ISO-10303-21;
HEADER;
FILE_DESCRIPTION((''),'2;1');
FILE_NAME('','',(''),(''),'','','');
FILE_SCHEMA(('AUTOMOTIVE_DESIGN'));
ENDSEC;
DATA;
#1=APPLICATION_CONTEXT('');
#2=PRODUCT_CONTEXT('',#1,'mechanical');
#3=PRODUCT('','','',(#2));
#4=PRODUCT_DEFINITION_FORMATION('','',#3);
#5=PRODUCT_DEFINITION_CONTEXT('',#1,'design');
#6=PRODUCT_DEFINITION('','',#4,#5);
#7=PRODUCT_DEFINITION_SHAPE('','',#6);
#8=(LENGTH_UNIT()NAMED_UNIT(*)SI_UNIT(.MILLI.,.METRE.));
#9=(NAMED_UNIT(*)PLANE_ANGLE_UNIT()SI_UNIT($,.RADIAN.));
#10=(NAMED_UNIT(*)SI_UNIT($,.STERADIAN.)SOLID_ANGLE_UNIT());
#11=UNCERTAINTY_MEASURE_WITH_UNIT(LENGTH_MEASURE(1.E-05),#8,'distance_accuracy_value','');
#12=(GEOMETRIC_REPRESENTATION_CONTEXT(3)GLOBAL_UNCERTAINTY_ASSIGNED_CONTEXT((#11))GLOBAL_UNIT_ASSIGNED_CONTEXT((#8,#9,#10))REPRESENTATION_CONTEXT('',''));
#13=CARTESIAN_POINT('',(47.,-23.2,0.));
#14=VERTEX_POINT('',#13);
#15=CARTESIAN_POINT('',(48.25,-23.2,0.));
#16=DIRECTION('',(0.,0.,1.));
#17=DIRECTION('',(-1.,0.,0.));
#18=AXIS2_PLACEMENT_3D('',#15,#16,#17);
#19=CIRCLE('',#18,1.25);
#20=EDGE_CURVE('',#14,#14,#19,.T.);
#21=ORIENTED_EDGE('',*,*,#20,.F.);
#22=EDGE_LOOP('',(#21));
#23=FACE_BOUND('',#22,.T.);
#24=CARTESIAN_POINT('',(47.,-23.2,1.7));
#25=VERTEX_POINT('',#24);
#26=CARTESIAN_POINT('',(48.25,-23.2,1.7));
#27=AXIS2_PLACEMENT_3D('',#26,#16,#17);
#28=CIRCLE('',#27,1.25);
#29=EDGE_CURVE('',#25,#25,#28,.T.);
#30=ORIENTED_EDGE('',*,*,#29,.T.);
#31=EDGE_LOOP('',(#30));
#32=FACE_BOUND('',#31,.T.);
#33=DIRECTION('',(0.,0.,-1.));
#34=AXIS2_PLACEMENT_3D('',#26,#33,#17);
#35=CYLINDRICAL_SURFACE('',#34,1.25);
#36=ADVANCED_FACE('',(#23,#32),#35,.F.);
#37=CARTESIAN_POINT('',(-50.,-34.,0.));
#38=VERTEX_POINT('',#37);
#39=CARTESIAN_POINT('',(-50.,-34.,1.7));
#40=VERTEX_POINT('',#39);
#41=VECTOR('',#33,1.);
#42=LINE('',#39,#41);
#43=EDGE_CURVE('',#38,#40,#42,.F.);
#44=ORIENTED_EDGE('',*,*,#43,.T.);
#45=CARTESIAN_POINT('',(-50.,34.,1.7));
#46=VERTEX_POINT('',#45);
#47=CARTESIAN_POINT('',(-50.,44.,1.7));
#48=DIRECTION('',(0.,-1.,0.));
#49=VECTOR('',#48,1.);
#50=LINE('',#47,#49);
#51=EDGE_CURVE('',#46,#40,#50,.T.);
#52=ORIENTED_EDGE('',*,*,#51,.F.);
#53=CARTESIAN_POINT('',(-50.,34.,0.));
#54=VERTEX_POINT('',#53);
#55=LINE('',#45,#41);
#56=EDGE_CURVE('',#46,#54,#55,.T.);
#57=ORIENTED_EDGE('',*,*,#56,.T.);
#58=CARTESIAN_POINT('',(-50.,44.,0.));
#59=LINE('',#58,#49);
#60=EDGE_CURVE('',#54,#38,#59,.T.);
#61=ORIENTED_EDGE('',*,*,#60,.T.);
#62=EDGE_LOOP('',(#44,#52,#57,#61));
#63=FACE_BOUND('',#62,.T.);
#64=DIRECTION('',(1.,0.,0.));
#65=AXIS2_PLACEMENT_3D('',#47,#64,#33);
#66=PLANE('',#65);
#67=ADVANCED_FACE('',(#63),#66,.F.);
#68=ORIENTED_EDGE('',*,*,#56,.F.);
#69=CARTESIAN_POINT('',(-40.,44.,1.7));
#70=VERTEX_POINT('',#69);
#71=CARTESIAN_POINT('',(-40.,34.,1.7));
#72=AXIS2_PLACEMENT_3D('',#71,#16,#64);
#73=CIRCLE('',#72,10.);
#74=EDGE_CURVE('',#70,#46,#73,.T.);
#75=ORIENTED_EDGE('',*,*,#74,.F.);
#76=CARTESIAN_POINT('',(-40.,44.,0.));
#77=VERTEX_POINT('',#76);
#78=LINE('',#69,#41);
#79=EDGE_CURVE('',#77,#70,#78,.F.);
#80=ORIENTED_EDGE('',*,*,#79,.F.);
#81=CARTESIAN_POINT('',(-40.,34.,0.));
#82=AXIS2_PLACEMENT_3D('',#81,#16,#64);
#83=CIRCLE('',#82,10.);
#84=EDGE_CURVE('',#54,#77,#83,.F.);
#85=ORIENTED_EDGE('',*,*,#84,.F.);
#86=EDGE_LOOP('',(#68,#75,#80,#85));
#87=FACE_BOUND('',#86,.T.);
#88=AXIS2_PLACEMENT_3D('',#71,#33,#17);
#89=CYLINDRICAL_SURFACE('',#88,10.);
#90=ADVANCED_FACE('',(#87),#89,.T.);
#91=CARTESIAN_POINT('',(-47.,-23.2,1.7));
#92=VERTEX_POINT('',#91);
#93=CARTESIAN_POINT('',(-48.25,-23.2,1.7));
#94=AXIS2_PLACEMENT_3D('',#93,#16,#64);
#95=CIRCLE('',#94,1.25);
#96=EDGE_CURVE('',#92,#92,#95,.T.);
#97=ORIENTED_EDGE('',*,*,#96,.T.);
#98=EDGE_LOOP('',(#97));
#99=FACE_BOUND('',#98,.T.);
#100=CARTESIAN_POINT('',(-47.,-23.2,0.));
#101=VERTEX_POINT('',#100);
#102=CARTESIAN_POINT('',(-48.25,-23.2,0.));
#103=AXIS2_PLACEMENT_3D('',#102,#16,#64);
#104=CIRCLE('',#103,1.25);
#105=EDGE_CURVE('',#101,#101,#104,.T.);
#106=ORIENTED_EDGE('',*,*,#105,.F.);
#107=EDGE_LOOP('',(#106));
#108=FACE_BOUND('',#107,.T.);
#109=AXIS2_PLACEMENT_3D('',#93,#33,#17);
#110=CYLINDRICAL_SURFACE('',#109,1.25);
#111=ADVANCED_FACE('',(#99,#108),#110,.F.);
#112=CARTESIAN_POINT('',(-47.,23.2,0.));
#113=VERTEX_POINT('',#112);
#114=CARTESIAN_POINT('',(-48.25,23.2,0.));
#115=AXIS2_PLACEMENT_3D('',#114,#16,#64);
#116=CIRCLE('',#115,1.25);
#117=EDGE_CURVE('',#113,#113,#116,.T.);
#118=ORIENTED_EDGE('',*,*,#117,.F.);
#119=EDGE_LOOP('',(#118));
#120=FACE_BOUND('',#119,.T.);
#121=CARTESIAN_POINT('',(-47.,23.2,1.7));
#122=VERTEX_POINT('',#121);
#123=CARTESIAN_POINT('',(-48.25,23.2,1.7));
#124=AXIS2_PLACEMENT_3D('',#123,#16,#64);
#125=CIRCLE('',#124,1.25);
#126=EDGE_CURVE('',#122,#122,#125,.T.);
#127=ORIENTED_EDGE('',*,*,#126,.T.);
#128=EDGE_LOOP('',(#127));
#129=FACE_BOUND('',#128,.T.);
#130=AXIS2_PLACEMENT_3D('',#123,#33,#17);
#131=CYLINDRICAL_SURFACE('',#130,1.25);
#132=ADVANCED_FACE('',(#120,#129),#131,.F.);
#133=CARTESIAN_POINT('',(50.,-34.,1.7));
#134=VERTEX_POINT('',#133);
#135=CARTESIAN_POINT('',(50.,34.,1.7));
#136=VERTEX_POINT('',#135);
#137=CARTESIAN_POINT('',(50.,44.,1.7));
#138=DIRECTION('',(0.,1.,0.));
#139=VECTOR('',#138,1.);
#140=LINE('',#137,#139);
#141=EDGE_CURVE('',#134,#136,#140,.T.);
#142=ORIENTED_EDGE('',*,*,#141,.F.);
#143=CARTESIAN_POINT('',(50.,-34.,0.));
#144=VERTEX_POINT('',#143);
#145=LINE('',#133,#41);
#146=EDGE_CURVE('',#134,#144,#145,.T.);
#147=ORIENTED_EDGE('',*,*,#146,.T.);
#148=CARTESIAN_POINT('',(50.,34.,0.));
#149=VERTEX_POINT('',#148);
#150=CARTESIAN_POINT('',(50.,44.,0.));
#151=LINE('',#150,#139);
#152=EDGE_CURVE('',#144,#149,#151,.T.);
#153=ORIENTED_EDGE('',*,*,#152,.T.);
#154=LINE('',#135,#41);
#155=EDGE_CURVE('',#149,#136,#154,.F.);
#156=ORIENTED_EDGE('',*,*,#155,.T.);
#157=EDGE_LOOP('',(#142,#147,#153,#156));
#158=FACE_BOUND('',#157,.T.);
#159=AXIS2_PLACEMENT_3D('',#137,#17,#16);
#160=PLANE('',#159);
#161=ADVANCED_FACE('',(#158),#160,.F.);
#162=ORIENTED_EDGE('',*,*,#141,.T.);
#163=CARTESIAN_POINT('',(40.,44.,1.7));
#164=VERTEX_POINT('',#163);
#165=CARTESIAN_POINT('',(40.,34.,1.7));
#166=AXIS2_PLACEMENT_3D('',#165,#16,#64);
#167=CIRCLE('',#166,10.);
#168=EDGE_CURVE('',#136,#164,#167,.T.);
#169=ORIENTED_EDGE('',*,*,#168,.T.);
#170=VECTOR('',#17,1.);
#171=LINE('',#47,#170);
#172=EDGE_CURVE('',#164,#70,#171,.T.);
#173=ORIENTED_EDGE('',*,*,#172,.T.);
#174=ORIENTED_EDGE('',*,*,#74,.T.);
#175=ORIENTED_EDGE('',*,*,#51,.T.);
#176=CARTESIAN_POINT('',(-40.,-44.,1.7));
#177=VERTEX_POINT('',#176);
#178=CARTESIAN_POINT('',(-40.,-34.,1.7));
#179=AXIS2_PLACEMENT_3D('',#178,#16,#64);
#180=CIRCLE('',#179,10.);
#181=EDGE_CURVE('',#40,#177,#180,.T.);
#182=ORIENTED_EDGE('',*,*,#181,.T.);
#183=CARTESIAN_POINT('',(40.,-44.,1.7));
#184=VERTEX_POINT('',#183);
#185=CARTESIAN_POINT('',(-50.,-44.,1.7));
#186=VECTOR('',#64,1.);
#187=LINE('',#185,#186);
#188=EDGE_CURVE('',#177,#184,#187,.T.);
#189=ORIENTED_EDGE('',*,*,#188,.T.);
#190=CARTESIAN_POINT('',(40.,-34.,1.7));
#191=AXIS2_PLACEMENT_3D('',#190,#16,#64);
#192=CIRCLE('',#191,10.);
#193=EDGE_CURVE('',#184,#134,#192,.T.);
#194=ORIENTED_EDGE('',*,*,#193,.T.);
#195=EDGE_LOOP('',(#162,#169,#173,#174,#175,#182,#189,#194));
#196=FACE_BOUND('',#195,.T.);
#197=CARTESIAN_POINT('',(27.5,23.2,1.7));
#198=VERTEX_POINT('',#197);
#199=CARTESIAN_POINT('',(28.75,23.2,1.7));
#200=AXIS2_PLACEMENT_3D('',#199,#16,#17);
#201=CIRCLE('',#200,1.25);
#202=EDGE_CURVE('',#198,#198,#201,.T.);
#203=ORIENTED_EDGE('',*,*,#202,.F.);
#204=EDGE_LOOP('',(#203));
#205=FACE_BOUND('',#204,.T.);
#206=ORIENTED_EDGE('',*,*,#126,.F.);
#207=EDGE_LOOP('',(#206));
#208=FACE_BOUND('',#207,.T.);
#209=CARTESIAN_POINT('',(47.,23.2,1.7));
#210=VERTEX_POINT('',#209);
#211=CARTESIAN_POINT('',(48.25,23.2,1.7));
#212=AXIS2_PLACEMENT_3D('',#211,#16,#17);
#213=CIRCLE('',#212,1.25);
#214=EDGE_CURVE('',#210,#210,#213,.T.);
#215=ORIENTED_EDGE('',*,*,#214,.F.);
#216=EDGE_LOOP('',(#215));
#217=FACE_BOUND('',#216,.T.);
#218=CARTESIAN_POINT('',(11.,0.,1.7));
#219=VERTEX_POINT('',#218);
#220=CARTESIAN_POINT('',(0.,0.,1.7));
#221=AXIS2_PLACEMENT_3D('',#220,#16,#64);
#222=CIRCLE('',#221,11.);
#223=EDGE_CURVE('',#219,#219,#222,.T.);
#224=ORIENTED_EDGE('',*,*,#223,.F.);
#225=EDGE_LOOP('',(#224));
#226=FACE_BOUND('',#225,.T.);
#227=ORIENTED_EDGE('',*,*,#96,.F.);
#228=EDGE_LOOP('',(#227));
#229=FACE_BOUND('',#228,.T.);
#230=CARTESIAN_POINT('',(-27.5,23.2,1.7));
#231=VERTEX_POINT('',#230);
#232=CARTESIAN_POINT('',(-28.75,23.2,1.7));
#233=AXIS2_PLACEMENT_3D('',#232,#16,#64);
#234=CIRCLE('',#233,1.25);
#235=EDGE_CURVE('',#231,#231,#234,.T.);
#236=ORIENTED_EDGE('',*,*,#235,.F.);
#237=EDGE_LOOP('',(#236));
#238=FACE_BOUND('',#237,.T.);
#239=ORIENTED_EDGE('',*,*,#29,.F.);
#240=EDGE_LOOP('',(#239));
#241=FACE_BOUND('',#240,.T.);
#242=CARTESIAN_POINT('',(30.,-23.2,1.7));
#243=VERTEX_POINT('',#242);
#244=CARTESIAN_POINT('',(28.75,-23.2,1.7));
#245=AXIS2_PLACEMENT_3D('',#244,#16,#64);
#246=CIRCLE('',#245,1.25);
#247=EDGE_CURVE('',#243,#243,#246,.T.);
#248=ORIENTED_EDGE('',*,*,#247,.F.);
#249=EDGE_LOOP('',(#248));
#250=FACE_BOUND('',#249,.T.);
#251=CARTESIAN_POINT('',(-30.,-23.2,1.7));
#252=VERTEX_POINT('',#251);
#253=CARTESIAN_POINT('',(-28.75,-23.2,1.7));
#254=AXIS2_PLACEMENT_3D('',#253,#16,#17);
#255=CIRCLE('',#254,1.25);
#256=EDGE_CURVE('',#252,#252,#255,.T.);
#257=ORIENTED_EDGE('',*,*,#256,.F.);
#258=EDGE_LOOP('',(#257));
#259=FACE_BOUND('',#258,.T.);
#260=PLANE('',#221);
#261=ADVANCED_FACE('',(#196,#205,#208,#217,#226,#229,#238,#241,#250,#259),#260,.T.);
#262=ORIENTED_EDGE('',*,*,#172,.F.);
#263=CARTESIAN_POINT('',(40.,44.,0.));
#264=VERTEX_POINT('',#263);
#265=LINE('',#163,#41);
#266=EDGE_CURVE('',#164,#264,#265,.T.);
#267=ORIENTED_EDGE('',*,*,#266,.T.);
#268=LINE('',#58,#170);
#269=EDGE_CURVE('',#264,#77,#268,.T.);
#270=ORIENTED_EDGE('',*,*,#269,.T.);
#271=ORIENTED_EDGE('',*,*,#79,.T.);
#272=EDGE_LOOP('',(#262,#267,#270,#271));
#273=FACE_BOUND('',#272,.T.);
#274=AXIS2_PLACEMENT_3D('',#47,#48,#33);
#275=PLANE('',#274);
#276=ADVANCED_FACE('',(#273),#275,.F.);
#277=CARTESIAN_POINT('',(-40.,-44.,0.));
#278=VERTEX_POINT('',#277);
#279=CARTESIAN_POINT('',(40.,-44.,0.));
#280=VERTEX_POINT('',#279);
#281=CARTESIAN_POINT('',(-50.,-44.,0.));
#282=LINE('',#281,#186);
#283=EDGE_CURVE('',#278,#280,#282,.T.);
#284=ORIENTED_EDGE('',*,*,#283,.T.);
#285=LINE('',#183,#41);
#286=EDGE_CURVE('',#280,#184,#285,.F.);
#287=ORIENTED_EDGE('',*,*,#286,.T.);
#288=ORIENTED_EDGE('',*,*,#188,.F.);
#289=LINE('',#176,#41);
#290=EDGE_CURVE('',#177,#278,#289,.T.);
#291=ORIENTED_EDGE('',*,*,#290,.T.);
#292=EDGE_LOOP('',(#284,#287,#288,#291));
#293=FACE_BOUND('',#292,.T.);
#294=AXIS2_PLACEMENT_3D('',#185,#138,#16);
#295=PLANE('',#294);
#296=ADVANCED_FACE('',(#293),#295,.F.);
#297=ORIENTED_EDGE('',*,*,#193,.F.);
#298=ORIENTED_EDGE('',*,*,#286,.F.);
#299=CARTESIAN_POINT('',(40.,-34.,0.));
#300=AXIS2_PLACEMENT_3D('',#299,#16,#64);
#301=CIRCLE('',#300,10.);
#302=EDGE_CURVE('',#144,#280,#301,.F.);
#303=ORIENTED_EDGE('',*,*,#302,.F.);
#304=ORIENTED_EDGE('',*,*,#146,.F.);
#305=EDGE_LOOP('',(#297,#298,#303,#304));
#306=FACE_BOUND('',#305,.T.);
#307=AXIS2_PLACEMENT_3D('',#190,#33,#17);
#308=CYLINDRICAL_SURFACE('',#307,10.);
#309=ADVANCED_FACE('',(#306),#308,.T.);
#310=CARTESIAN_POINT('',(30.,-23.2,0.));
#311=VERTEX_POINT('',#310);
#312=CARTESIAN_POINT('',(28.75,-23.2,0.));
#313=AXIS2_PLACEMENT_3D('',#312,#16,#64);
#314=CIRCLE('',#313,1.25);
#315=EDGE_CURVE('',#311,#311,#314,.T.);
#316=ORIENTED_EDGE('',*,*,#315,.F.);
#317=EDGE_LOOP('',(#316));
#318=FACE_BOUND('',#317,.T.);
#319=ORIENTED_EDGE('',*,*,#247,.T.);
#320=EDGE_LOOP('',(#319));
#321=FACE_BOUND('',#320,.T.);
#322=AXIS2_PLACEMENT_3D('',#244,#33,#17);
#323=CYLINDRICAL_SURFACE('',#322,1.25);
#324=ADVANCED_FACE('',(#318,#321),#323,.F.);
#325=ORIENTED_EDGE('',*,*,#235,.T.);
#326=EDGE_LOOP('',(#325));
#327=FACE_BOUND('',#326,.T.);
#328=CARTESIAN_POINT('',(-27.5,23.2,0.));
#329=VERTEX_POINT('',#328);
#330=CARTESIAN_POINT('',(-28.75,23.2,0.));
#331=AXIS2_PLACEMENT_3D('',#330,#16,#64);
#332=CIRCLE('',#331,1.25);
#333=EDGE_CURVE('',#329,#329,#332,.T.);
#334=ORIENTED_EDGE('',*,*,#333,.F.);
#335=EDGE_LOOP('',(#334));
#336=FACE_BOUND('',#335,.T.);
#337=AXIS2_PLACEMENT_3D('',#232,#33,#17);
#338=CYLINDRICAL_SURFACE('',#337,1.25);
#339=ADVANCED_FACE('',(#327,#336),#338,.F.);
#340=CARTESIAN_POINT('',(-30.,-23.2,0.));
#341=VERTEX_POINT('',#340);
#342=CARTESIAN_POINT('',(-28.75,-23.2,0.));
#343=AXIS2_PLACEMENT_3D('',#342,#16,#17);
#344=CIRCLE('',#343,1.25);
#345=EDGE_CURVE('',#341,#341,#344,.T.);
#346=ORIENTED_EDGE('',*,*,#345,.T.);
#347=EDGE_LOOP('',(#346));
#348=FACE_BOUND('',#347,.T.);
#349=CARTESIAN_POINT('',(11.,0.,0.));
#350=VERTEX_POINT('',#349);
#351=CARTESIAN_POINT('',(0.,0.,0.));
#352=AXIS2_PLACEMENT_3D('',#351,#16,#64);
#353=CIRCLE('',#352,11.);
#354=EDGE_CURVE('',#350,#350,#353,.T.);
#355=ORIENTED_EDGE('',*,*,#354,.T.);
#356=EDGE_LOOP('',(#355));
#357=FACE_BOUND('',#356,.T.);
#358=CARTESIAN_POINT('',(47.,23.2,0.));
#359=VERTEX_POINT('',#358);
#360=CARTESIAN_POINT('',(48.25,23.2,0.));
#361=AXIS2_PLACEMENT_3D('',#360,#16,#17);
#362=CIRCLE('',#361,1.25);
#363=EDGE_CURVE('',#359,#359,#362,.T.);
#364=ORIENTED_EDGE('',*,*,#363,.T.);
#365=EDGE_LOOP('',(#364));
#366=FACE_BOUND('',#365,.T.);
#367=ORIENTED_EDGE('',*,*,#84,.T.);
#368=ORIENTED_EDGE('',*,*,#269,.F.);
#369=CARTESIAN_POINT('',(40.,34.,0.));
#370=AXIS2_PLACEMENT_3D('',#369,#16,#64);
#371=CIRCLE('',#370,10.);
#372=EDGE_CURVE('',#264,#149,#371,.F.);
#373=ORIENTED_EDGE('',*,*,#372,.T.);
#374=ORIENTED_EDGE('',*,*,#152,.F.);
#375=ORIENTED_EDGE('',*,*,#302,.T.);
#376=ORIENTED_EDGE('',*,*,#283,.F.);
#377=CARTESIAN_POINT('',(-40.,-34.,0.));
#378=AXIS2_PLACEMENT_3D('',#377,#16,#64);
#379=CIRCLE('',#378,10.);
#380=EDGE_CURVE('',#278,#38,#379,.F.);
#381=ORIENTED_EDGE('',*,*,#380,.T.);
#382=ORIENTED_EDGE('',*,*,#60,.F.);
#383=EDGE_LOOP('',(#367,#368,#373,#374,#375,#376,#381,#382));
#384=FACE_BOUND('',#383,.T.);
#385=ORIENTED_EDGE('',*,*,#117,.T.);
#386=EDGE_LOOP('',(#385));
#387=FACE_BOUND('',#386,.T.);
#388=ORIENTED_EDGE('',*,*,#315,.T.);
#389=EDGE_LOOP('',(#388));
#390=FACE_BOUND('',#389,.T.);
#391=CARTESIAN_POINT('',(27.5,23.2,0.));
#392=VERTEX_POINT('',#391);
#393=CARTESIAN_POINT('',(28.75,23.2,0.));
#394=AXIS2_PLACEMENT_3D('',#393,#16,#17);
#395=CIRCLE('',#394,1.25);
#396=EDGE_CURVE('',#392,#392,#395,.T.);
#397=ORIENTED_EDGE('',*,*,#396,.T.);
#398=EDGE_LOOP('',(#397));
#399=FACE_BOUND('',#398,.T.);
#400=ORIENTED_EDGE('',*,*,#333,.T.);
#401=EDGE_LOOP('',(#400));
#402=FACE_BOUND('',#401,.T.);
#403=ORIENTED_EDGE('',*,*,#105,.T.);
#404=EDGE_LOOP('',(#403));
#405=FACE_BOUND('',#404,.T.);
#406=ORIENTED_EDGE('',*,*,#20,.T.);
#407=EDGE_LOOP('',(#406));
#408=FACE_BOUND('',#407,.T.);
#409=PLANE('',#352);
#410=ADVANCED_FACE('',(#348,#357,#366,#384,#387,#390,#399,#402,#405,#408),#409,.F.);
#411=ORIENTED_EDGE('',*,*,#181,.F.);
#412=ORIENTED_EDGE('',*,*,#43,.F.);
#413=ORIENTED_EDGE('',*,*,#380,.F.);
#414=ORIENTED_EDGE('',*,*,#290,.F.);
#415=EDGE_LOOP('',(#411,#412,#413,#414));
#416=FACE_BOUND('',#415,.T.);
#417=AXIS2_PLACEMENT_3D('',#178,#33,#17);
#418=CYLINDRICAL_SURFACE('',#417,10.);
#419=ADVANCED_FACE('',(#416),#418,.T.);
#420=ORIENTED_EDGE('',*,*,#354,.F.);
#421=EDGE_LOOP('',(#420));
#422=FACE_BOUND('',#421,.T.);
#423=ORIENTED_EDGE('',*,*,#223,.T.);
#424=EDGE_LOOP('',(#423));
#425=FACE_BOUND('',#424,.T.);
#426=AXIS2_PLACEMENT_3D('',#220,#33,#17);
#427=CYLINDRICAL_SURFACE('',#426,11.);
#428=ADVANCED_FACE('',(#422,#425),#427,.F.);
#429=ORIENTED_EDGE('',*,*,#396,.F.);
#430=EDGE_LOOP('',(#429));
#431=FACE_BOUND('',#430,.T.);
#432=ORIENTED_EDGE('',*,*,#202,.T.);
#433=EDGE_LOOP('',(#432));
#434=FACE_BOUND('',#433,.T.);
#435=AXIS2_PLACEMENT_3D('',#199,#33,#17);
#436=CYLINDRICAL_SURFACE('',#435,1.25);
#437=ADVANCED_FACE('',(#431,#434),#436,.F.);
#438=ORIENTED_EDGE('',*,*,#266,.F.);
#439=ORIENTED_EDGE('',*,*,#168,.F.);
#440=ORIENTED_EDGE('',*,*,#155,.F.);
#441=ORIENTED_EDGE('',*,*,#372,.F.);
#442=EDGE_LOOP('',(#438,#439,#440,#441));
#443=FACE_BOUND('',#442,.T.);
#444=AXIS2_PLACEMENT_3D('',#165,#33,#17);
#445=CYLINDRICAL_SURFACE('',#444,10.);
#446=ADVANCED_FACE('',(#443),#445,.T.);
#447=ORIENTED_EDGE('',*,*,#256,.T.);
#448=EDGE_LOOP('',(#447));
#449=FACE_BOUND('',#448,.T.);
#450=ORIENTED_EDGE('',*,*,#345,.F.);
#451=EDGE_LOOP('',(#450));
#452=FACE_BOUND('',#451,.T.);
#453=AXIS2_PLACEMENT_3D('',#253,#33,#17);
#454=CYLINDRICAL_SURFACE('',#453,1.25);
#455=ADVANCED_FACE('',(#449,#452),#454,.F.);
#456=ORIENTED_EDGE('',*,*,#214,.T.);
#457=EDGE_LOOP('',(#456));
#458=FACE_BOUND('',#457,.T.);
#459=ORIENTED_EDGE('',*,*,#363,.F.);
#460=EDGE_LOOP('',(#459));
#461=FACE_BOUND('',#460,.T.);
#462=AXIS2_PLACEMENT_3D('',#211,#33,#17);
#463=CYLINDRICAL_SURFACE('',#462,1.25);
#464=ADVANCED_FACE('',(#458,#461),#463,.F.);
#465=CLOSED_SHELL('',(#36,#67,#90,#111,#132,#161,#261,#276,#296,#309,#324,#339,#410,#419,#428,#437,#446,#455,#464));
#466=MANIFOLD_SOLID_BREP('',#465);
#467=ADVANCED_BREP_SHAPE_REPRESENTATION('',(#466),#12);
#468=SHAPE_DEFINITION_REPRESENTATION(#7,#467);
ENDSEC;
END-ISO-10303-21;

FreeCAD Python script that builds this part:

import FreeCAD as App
import Part
import Sketcher
Q = App.Units.Quantity


def edges_at(feature, points):
    """Names of the edges that pass closest to the given points."""
    edges = feature.Shape.Edges
    near = lambda p: min(range(len(edges)), key=lambda i: edges[i].distToShape(Part.Vertex(*p))[0])
    return sorted({f"Edge{near(p) + 1}" for p in points})

doc = App.newDocument("Part")
body = doc.addObject("PartDesign::Body", "Body")

sketch1 = body.newObject("Sketcher::SketchObject", "Sketch")
sketch1.AttachmentSupport = (doc.getObject("XY_Plane"), [""])
sketch1.MapMode = "FlatFace"
sketch1.addGeometry([
    Part.LineSegment(App.Vector(-50, 44, 0), App.Vector(-50, -44, 0)),
    Part.LineSegment(App.Vector(-50, -44, 0), App.Vector(50, -44, 0)),
    Part.LineSegment(App.Vector(50, -44, 0), App.Vector(50, 44, 0)),
    Part.LineSegment(App.Vector(50, 44, 0), App.Vector(-50, 44, 0)),
    Part.Circle(App.Vector(-48.25, -23.2, 0), App.Vector(0, 0, 1), 1.25),
    Part.Circle(App.Vector(-28.75, -23.2, 0), App.Vector(0, 0, 1), 1.25),
    Part.Circle(App.Vector(28.75, -23.2, 0), App.Vector(0, 0, 1), 1.25),
    Part.Circle(App.Vector(48.25, -23.2, 0), App.Vector(0, 0, 1), 1.25),
    Part.Circle(App.Vector(-48.25, 23.2, 0), App.Vector(0, 0, 1), 1.25),
    Part.Circle(App.Vector(-28.75, 23.2, 0), App.Vector(0, 0, 1), 1.25),
    Part.Circle(App.Vector(0, 0, 0), App.Vector(0, 0, 1), 11),
    Part.Circle(App.Vector(28.75, 23.2, 0), App.Vector(0, 0, 1), 1.25),
    Part.Circle(App.Vector(48.25, 23.2, 0), App.Vector(0, 0, 1), 1.25),
], False)
sketch1.addConstraint([
    Sketcher.Constraint("Coincident", 0, 2, 1, 1),
    Sketcher.Constraint("Coincident", 1, 2, 2, 1),
    Sketcher.Constraint("Coincident", 2, 2, 3, 1),
    Sketcher.Constraint("Coincident", 3, 2, 0, 1),
    Sketcher.Constraint("Vertical", 0),
    Sketcher.Constraint("Horizontal", 1),
    Sketcher.Constraint("Vertical", 2),
    Sketcher.Constraint("Horizontal", 3),
    Sketcher.Constraint("Coincident", 10, 3, -1, 1),
    Sketcher.Constraint("Equal", 4, 5),
    Sketcher.Constraint("Equal", 5, 6),
    Sketcher.Constraint("Equal", 6, 7),
    Sketcher.Constraint("Equal", 7, 8),
    Sketcher.Constraint("Equal", 8, 9),
    Sketcher.Constraint("Equal", 9, 11),
    Sketcher.Constraint("Equal", 11, 12),
    Sketcher.Constraint("Symmetric", 7, 3, 8, 3, -1, 1),
    Sketcher.Constraint("Symmetric", 6, 3, 9, 3, -1, 1),
    Sketcher.Constraint("Symmetric", 5, 3, 11, 3, -1, 1),
    Sketcher.Constraint("Symmetric", 4, 3, 12, 3, -1, 1),
    Sketcher.Constraint("Symmetric", 0, 2, 2, 2, -1, 1),
    Sketcher.Constraint("Symmetric", 5, 3, 6, 3, -2),
    Sketcher.Constraint("Symmetric", 4, 3, 7, 3, -2),
    Sketcher.Constraint("Horizontal", 4, 3, 5, 3),
    Sketcher.Constraint("Diameter", 10, Q("22 mm")),
    Sketcher.Constraint("Diameter", 4, Q("2.5 mm")),
    Sketcher.Constraint("DistanceX", 1, 1, 1, 2, Q("100 mm")),
    Sketcher.Constraint("DistanceY", 0, 2, 0, 1, Q("88 mm")),
    Sketcher.Constraint("DistanceX", 4, 3, 6, 3, Q("77 mm")),
    Sketcher.Constraint("DistanceY", 4, 3, -1, 1, Q("23.2 mm")),
    Sketcher.Constraint("DistanceX", 4, 3, 5, 3, Q("19.5 mm")),
])
pad1 = body.newObject("PartDesign::Pad", "Pad")
pad1.Profile = sketch1
pad1.Length = 1.7
doc.recompute()

fillet = body.newObject("PartDesign::Fillet", "Fillet")
fillet.Base = (pad1, edges_at(pad1, [
    (50, -44, 0.85),
    (-50, -44, 0.85),
    (-50, 44, 0.85),
    (50, 44, 0.85),
]))
fillet.Radius = 10

doc.recompute()
